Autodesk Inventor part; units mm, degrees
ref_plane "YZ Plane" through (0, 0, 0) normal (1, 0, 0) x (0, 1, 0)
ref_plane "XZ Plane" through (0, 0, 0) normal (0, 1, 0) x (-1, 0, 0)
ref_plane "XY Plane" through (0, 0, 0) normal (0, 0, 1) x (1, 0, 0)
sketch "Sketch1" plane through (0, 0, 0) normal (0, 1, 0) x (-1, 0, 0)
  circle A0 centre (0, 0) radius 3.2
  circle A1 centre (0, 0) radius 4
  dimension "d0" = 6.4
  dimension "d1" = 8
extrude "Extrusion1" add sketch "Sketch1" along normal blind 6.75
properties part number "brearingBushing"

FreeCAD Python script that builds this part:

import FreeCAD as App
import Part
import Sketcher
from FreeCAD import Vector

doc = App.newDocument("Part")
body = doc.addObject("PartDesign::Body", "Body")

sketch1 = body.newObject("Sketcher::SketchObject", "Sketch")
sketch1.AttachmentSupport = (doc.getObject("XZ_Plane"), [""])
sketch1.MapMode = "FlatFace"
sketch1.addGeometry([
    Part.Circle(Vector(0, 0, 0), Vector(0, 0, 1), 4),
    Part.Circle(Vector(0, 0, 0), Vector(0, 0, 1), 3.2),
], False)
sketch1.addConstraint([
    Sketcher.Constraint("Coincident", 0, 3, -1, 1),
    Sketcher.Constraint("Coincident", 1, 3, -1, 1),
    Sketcher.Constraint("Diameter", 0, 8.0),
    Sketcher.Constraint("Diameter", 1, 6.4),
])
pad1 = body.newObject("PartDesign::Pad", "Pad")
pad1.Profile = sketch1
pad1.Length = 6.75
pad1.Reversed = True

doc.recompute()
